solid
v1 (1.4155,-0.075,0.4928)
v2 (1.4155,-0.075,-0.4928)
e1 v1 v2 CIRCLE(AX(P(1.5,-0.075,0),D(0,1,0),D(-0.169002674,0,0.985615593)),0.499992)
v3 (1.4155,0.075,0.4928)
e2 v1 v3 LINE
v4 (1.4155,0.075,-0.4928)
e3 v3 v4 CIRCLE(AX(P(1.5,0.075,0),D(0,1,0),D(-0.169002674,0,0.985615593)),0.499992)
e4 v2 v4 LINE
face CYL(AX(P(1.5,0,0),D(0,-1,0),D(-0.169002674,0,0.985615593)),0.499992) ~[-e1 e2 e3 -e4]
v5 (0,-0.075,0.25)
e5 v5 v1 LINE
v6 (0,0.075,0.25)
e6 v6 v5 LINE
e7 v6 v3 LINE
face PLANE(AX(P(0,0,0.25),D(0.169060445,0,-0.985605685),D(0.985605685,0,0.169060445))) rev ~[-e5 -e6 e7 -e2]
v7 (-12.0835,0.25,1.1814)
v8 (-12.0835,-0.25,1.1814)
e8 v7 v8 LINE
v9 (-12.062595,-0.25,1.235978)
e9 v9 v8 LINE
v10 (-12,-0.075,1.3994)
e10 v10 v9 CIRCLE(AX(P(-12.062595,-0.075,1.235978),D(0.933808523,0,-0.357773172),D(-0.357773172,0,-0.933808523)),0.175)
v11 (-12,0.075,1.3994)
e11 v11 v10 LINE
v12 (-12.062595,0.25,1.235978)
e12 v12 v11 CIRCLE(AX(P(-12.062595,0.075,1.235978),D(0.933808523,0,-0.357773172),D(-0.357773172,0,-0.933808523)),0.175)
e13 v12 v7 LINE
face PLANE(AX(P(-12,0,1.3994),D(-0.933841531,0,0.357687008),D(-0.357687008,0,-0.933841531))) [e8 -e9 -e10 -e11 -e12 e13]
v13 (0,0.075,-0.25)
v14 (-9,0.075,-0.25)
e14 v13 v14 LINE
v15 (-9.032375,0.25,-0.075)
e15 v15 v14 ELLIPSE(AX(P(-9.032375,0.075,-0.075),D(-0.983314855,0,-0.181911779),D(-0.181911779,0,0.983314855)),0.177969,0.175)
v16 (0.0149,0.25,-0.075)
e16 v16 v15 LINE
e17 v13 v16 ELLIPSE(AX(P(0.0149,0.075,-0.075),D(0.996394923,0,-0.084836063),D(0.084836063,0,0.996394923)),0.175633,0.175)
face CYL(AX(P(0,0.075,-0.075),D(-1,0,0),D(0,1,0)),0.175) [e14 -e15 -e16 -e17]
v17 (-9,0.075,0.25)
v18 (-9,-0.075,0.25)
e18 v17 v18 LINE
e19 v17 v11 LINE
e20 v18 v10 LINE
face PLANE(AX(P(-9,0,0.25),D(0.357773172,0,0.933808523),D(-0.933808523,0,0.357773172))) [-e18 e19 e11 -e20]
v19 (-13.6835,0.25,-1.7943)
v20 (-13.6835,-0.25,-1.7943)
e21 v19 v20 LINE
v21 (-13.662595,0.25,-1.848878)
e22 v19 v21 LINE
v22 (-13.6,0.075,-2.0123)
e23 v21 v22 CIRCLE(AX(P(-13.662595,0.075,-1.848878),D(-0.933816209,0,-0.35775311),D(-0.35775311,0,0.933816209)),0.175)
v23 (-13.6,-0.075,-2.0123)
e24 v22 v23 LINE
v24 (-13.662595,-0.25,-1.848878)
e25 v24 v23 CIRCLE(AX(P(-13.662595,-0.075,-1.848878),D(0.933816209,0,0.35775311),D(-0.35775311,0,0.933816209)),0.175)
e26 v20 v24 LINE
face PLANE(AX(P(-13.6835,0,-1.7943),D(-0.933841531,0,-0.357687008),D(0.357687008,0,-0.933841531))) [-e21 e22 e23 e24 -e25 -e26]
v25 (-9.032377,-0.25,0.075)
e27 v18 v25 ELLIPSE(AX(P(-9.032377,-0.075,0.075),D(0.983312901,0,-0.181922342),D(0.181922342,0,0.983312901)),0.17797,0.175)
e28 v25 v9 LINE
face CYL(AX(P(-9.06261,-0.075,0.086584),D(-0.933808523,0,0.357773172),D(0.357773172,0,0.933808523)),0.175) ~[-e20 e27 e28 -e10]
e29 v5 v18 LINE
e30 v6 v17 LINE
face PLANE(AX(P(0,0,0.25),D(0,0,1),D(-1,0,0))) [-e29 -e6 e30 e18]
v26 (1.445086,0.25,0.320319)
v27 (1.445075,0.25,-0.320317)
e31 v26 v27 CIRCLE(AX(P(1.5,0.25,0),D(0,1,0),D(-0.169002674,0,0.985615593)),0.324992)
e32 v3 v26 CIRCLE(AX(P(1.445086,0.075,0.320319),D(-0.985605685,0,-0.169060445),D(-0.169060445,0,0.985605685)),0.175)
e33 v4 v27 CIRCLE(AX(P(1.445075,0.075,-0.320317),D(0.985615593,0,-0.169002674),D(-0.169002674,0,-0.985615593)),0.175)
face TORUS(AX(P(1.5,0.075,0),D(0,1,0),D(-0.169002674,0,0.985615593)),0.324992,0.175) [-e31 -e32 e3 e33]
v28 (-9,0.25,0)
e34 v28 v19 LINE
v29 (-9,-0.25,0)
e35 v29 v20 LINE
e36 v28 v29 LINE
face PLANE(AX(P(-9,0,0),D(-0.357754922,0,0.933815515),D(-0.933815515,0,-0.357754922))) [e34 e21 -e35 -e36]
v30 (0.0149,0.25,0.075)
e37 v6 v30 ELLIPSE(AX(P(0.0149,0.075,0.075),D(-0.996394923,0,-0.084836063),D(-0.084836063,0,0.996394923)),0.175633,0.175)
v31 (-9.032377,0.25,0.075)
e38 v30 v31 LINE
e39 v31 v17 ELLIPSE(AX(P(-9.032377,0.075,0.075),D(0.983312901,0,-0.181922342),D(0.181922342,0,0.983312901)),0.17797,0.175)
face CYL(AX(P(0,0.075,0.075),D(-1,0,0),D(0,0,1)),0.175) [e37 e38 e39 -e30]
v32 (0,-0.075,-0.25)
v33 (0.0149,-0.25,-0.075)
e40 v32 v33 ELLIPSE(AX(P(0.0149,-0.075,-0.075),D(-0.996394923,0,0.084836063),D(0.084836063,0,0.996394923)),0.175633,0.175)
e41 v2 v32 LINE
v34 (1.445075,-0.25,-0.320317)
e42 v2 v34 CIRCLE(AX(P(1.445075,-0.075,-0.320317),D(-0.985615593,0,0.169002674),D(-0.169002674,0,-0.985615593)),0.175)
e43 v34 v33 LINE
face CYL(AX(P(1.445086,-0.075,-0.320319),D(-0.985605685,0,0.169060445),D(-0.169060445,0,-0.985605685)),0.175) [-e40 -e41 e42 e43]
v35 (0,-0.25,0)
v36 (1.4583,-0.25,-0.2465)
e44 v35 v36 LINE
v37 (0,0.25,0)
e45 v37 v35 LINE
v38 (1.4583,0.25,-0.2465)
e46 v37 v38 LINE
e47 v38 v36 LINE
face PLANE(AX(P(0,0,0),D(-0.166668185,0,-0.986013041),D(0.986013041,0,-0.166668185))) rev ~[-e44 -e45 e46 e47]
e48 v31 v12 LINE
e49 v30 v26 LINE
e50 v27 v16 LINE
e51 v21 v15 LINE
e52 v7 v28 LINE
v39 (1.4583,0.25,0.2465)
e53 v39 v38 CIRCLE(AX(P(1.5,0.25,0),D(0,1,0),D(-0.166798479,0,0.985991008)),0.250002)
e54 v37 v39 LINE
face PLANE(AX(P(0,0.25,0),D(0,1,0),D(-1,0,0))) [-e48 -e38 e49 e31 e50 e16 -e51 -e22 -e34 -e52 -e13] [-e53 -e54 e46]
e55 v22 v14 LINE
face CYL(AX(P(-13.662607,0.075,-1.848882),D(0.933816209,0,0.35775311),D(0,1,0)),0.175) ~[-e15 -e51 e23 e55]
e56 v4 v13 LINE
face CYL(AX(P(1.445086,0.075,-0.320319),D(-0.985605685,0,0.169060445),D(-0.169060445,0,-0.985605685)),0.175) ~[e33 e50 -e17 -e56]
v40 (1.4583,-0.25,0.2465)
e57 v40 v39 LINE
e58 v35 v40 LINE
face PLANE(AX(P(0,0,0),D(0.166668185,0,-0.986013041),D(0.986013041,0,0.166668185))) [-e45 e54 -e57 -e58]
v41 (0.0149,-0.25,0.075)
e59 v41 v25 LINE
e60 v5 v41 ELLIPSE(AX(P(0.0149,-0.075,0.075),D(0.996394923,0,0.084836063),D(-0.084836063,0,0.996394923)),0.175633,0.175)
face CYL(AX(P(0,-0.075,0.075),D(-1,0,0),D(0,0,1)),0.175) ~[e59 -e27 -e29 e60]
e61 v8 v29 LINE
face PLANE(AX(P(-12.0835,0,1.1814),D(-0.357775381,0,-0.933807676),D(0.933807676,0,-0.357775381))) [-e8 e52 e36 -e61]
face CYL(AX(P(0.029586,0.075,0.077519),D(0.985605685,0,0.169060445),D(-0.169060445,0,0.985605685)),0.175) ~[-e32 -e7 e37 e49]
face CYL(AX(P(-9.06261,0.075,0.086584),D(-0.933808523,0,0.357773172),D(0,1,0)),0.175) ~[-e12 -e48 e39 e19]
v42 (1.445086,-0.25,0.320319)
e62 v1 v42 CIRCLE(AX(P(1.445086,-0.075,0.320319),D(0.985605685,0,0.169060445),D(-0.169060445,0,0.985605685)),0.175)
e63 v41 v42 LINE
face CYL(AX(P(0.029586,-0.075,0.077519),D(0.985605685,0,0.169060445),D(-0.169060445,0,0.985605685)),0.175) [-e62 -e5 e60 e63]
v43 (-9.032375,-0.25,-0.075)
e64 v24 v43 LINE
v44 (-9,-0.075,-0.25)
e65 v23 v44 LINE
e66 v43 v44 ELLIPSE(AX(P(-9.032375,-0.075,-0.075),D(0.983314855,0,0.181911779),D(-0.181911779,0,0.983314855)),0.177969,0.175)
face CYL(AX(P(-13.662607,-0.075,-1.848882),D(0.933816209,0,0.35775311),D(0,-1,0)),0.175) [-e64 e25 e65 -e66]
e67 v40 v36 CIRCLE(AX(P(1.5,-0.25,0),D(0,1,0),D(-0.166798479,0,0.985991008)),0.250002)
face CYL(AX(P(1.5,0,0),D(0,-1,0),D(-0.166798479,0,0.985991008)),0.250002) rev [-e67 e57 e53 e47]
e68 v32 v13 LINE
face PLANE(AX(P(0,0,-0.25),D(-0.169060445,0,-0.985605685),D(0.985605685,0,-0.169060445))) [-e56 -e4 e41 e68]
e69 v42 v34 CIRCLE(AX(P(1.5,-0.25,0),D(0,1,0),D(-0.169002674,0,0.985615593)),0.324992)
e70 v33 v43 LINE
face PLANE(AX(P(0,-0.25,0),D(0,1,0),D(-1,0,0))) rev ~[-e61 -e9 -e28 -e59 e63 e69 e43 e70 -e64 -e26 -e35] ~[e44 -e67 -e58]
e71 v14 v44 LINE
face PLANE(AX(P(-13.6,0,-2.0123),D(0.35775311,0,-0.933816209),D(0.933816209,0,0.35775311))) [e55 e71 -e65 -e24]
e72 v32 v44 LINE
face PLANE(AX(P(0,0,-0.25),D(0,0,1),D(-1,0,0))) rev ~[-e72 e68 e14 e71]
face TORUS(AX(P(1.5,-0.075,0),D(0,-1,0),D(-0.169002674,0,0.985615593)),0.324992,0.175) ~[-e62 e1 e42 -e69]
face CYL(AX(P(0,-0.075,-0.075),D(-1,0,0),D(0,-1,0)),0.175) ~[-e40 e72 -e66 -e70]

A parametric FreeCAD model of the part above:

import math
import FreeCAD as App
import Part
import Sketcher
from FreeCAD import Vector
Q = App.Units.Quantity


def edges_at(feature, points):
    """Names of the edges that pass closest to the given points."""
    edges = feature.Shape.Edges
    near = lambda p: min(range(len(edges)), key=lambda i: edges[i].distToShape(Part.Vertex(*p))[0])
    return sorted({f"Edge{near(p) + 1}" for p in points})

doc = App.newDocument("Part")
params = doc.addObject("Spreadsheet::Sheet", "Params")
for row, (alias, value) in enumerate([
    ("sketch1_radius", "0.5 mm"),
    ("sketch1_width", "9 mm"),
    ("sketch1_radius2", "0.25 mm"),
    ("pad1_length", "0.5 mm"),
    ("fillet_radius", "0.175 mm"),
], start=1):
    params.set(f"A{row}", alias)
    params.set(f"B{row}", "=" + value)
    params.setAlias(f"B{row}", alias)

body = doc.addObject("PartDesign::Body", "Body")

# Sketch on XZ plane
sketch1 = body.newObject("Sketcher::SketchObject", "Sketch")
sketch1.AttachmentSupport = (doc.getObject("XZ_Plane"), [""])
sketch1.MapMode = "FlatFace"
sketch1.addGeometry(Part.LineSegment(Vector(0, 0.25, 0), Vector(1.4155, 0.4928, 0)), False)
sketch1.addGeometry(Part.ArcOfCircle(Part.Circle(Vector(1.5, 0, 0), Vector(0, 0, 1), 0.499992), math.radians(-99.729837), math.radians(99.729837)), False)
sketch1.addGeometry(Part.LineSegment(Vector(1.4155, -0.4928, 0), Vector(0, -0.25, 0)), False)
sketch1.addGeometry(Part.LineSegment(Vector(0, -0.25, 0), Vector(-9, -0.25, 0)), False)
sketch1.addGeometry(Part.LineSegment(Vector(-9, -0.25, 0), Vector(-13.6, -2.0123, 0)), False)
sketch1.addGeometry(Part.LineSegment(Vector(-13.6, -2.0123, 0), Vector(-13.6835, -1.7943, 0)), False)
sketch1.addGeometry(Part.LineSegment(Vector(-13.6835, -1.7943, 0), Vector(-9, 0, 0)), False)
sketch1.addGeometry(Part.LineSegment(Vector(-9, 0, 0), Vector(-12.0835, 1.1814, 0)), False)
sketch1.addGeometry(Part.LineSegment(Vector(-12.0835, 1.1814, 0), Vector(-12, 1.3994, 0)), False)
sketch1.addGeometry(Part.LineSegment(Vector(-12, 1.3994, 0), Vector(-9, 0.25, 0)), False)
sketch1.addGeometry(Part.LineSegment(Vector(-9, 0.25, 0), Vector(0, 0.25, 0)), False)
sketch1.addGeometry(Part.ArcOfCircle(Part.Circle(Vector(1.5, 0, 0), Vector(0, 0, 1), 0.250002), math.radians(-99.601728), math.radians(99.601728)), False)
sketch1.addGeometry(Part.LineSegment(Vector(1.4583, 0.2465, 0), Vector(0, 0, 0)), False)
sketch1.addGeometry(Part.LineSegment(Vector(0, 0, 0), Vector(1.4583, -0.2465, 0)), False)
sketch1.addConstraint(Sketcher.Constraint("Tangent", 0, 2, 1, 2))
sketch1.addConstraint(Sketcher.Constraint("Tangent", 1, 1, 2, 1))
sketch1.addConstraint(Sketcher.Constraint("Coincident", 2, 2, 3, 1))
sketch1.addConstraint(Sketcher.Constraint("Coincident", 3, 2, 4, 1))
sketch1.addConstraint(Sketcher.Constraint("Coincident", 4, 2, 5, 1))
sketch1.addConstraint(Sketcher.Constraint("Coincident", 5, 2, 6, 1))
sketch1.addConstraint(Sketcher.Constraint("Coincident", 6, 2, 7, 1))
sketch1.addConstraint(Sketcher.Constraint("Coincident", 7, 2, 8, 1))
sketch1.addConstraint(Sketcher.Constraint("Coincident", 8, 2, 9, 1))
sketch1.addConstraint(Sketcher.Constraint("Coincident", 9, 2, 10, 1))
sketch1.addConstraint(Sketcher.Constraint("Coincident", 10, 2, 0, 1))
sketch1.addConstraint(Sketcher.Constraint("Tangent", 11, 2, 12, 1))
sketch1.addConstraint(Sketcher.Constraint("Coincident", 12, 2, 13, 1))
sketch1.addConstraint(Sketcher.Constraint("Tangent", 13, 2, 11, 1))
sketch1.addConstraint(Sketcher.Constraint("Horizontal", 3))
sketch1.addConstraint(Sketcher.Constraint("Horizontal", 10))
sketch1.addConstraint(Sketcher.Constraint("Coincident", 12, 2, -1, 1))
sketch1.addConstraint(Sketcher.Constraint("Coincident", 11, 3, 1, 3))
sketch1.addConstraint(Sketcher.Constraint("Symmetric", 2, 2, 10, 2, -1, 1))
sketch1.addConstraint(Sketcher.Constraint("Symmetric", 0, 2, 1, 1, -1))
sketch1.addConstraint(Sketcher.Constraint("PointOnObject", 6, 2, -1))
sketch1.addConstraint(Sketcher.Constraint("Perpendicular", 4, 5))
sketch1.addConstraint(Sketcher.Constraint("Perpendicular", 5, 6))
sketch1.addConstraint(Sketcher.Constraint("Perpendicular", 7, 8))
sketch1.addConstraint(Sketcher.Constraint("Perpendicular", 8, 9))
sketch1.addConstraint(Sketcher.Constraint("Vertical", 3, 2, 6, 2))
sketch1.addConstraint(Sketcher.Constraint("Vertical", 6, 2, 9, 2))
sketch1.addConstraint(Sketcher.Constraint("Equal", 5, 8))
sketch1.addConstraint(Sketcher.Constraint("Radius", 1, Q("0.5 mm")))
sketch1.addConstraint(Sketcher.Constraint("DistanceX", 3, 2, 3, 1, Q("9 mm")))
sketch1.addConstraint(Sketcher.Constraint("Radius", 11, Q("0.25 mm")))
sketch1.addConstraint(Sketcher.Constraint("DistanceX", 8, 2, -1, 1, Q("12 mm")))
sketch1.addConstraint(Sketcher.Constraint("DistanceX", -1, 1, 1, 3, Q("1.5 mm")))
sketch1.addConstraint(Sketcher.Constraint("DistanceX", 5, 2, 7, 2, Q("1.6 mm")))
sketch1.addConstraint(Sketcher.Constraint("DistanceY", 3, 2, 9, 2, Q("0.5 mm")))
sketch1.addConstraint(Sketcher.Constraint("Distance", 4, Q("4.926 mm")))
sketch1.setExpression("Constraints[28]", "Params.sketch1_radius")
sketch1.setExpression("Constraints[29]", "Params.sketch1_width")
sketch1.setExpression("Constraints[30]", "Params.sketch1_radius2")
pad1 = body.newObject("PartDesign::Pad", "Pad")
pad1.Profile = sketch1
pad1.setExpression("Length", "Params.pad1_length")
pad1.Midplane = True
doc.recompute()

fillet = body.newObject("PartDesign::Fillet", "Fillet")
fillet.Base = (pad1, edges_at(pad1, [
    (-10.5, -0.25, 0.825),
    (-10.5, 0.25, 0.825),
    (-4.5, -0.25, 0.25),
    (-4.5, 0.25, 0.25),
    (2, -0.25, 0),
    (0.708, -0.25, -0.371),
    (0.708, -0.25, 0.371),
    (2, 0.25, 0),
    (0.708, 0.25, 0.371),
    (0.708, 0.25, -0.371),
    (-4.5, -0.25, -0.25),
    (-11.3, -0.25, -1.131),
    (-4.5, 0.25, -0.25),
    (-11.3, 0.25, -1.131),
]))
fillet.setExpression("Radius", "Params.fillet_radius")

doc.recompute()
